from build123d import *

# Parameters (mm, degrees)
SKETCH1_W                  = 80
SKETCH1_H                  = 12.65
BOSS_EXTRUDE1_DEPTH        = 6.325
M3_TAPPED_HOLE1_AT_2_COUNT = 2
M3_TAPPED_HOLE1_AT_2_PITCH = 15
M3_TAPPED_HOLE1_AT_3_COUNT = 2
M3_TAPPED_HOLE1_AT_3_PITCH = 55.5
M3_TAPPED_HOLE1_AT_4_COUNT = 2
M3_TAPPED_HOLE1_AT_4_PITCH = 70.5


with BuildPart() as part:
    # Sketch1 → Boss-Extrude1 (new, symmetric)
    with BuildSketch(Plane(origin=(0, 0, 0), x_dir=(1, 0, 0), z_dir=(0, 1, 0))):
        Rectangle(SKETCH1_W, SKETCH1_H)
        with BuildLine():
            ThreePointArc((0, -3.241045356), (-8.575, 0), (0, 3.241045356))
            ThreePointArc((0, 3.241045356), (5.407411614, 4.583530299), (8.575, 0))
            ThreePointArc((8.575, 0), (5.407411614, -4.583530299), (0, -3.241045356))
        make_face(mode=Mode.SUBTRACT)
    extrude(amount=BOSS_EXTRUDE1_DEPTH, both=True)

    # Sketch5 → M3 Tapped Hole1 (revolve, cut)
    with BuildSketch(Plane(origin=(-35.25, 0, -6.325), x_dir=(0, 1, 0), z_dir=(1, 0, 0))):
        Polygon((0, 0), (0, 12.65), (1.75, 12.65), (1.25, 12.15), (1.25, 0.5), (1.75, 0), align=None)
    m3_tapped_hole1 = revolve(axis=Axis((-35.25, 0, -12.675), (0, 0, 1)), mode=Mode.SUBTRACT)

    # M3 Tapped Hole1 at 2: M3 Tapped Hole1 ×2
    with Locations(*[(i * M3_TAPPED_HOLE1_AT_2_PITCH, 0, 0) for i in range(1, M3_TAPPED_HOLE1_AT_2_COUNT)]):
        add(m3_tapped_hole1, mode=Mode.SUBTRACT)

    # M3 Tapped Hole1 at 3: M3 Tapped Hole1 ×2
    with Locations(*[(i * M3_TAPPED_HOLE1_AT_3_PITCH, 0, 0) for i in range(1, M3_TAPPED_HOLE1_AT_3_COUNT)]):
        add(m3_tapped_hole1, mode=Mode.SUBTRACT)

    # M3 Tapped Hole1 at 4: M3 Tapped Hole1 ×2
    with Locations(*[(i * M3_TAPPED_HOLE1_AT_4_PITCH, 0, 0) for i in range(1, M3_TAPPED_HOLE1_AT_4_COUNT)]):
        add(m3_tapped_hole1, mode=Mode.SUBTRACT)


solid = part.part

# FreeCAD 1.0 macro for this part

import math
import FreeCAD as App
import Part
import Sketcher
Q = App.Units.Quantity


def add_polygon(sketch, points):
    """Adds a closed chain of lines whose ends are joined by coincident constraints."""
    first, n = sketch.GeometryCount, len(points)
    for a, b in zip(points, points[1:] + points[:1]):
        sketch.addGeometry(Part.LineSegment(App.Vector(*a, 0), App.Vector(*b, 0)), False)
    for i in range(n):
        sketch.addConstraint(Sketcher.Constraint("Coincident", first + i, 2, first + (i + 1) % n, 1))

doc = App.newDocument("Part")
body = doc.addObject("PartDesign::Body", "Body")

# Sketch on XZ plane
sketch1 = body.newObject("Sketcher::SketchObject", "Sketch")
sketch1.AttachmentSupport = (doc.getObject("XZ_Plane"), [""])
sketch1.MapMode = "FlatFace"
add_polygon(sketch1, [(-40, -6.3), (-40, 6.3), (40, 6.3), (40, -6.3)])  # lines 0-3
sketch1.addGeometry(Part.ArcOfCircle(Part.Circle(App.Vector(3.7, 0, 0), App.Vector(0, 0, 1), 4.9), math.radians(0), math.radians(139)), False)  # 4
sketch1.addGeometry(Part.ArcOfCircle(Part.Circle(App.Vector(-3.7, 0, 0), App.Vector(0, 0, 1), 4.9), math.radians(41), math.radians(319)), False)  # 5
sketch1.addGeometry(Part.ArcOfCircle(Part.Circle(App.Vector(3.7, 0, 0), App.Vector(0, 0, 1), 4.9), math.radians(-139), math.radians(0)), False)  # 6
sketch1.addConstraint(Sketcher.Constraint("Coincident", 4, 2, 5, 1))
sketch1.addConstraint(Sketcher.Constraint("Coincident", 5, 2, 6, 1))
sketch1.addConstraint(Sketcher.Constraint("Tangent", 6, 2, 4, 1))
sketch1.addConstraint(Sketcher.Constraint("Vertical", 0))
sketch1.addConstraint(Sketcher.Constraint("Horizontal", 1))
sketch1.addConstraint(Sketcher.Constraint("Vertical", 2))
sketch1.addConstraint(Sketcher.Constraint("Horizontal", 3))
sketch1.addConstraint(Sketcher.Constraint("Equal", 4, 5))
sketch1.addConstraint(Sketcher.Constraint("Equal", 5, 6))
sketch1.addConstraint(Sketcher.Constraint("Symmetric", 4, 3, 5, 3, -1, 1))
sketch1.addConstraint(Sketcher.Constraint("Symmetric", 0, 2, 2, 2, -1, 1))
sketch1.addConstraint(Sketcher.Constraint("PointOnObject", 4, 3, -1))
sketch1.addConstraint(Sketcher.Constraint("PointOnObject", 6, 2, -1))
sketch1.addConstraint(Sketcher.Constraint("Radius", 4, Q("4.9 mm")))
sketch1.addConstraint(Sketcher.Constraint("DistanceX", 1, 1, 1, 2, Q("80 mm")))
sketch1.addConstraint(Sketcher.Constraint("DistanceY", 0, 1, 0, 2, Q("12.65 mm")))
sketch1.addConstraint(Sketcher.Constraint("DistanceX", 5, 3, 4, 3, Q("7.35 mm")))
pad1 = body.newObject("PartDesign::Pad", "Pad")
pad1.Profile = sketch1
pad1.Length = 12.65
pad1.Midplane = True

# Sketch on YZ plane
sketch2 = body.newObject("Sketcher::SketchObject", "Sketch001")
sketch2.AttachmentSupport = (doc.getObject("YZ_Plane"), [""])
sketch2.MapMode = "FlatFace"
sketch2.AttachmentOffset = App.Placement(App.Vector(0, 0, -35.25), App.Rotation())
add_polygon(sketch2, [(0, 6.3), (0, -6.3), (1.8, -6.3), (1.2, -5.8), (1.2, 5.8), (1.8, 6.3)])  # lines 0-5
sketch2.addConstraint(Sketcher.Constraint("Vertical", 0))
sketch2.addConstraint(Sketcher.Constraint("Horizontal", 1))
sketch2.addConstraint(Sketcher.Constraint("Vertical", 3))
sketch2.addConstraint(Sketcher.Constraint("Horizontal", 5))
sketch2.addConstraint(Sketcher.Constraint("Symmetric", 0, 2, 5, 2, -1, 1))
sketch2.addConstraint(Sketcher.Constraint("Perpendicular", 2, 4))
sketch2.addConstraint(Sketcher.Constraint("Vertical", 1, 2, 4, 2))
sketch2.addConstraint(Sketcher.Constraint("Equal", 2, 4))
sketch2.addConstraint(Sketcher.Constraint("DistanceX", 1, 1, 1, 2, Q("1.75 mm")))
sketch2.addConstraint(Sketcher.Constraint("DistanceY", 0, 2, 0, 1, Q("12.65 mm")))
sketch2.addConstraint(Sketcher.Constraint("DistanceY", 3, 1, 3, 2, Q("11.65 mm")))
groove = body.newObject("PartDesign::Groove", "Groove")
groove.Profile = sketch2
groove.ReferenceAxis = (sketch2, ["V_Axis"])
groove.Angle = 360
doc.recompute()

linearpattern = body.newObject("PartDesign::LinearPattern", "LinearPattern")
linearpattern.Originals = [groove]
linearpattern.Direction = (doc.getObject("X_Axis"), [""])
linearpattern.Mode = "offset"
linearpattern.Offset = 15
linearpattern.Occurrences = 2
body.Tip = linearpattern
doc.recompute()

linearpattern2 = body.newObject("PartDesign::LinearPattern", "LinearPattern001")
linearpattern2.Originals = [groove]
linearpattern2.Direction = (doc.getObject("X_Axis"), [""])
linearpattern2.Mode = "offset"
linearpattern2.Offset = 55.5
linearpattern2.Occurrences = 2
body.Tip = linearpattern2
doc.recompute()

linearpattern3 = body.newObject("PartDesign::LinearPattern", "LinearPattern002")
linearpattern3.Originals = [groove]
linearpattern3.Direction = (doc.getObject("X_Axis"), [""])
linearpattern3.Mode = "offset"
linearpattern3.Offset = 70.5
linearpattern3.Occurrences = 2
body.Tip = linearpattern3

doc.recompute()
